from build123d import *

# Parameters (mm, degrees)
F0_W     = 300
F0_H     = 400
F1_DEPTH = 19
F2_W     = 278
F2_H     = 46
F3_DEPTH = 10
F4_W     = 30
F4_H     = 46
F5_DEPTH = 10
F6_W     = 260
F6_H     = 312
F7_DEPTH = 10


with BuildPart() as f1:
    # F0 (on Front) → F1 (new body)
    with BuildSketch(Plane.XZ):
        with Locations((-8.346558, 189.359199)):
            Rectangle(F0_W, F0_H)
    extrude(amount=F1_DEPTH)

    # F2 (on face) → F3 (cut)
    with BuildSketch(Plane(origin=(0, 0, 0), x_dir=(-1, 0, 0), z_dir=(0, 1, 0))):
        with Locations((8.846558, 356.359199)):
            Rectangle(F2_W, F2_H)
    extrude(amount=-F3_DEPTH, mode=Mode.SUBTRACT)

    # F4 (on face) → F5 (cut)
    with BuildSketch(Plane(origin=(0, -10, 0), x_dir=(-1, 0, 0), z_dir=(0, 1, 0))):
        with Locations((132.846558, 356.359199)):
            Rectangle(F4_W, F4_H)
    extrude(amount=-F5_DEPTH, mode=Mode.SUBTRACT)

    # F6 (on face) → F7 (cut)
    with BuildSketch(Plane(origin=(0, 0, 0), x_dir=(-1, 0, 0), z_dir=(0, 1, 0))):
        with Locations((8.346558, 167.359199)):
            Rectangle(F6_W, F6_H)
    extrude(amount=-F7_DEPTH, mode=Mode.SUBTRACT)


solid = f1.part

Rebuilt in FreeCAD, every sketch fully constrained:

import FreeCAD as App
import Part
import Sketcher
from FreeCAD import Vector


def add_polygon(sketch, points):
    """Adds a closed chain of lines whose ends are joined by coincident constraints."""
    first, n = sketch.GeometryCount, len(points)
    for a, b in zip(points, points[1:] + points[:1]):
        sketch.addGeometry(Part.LineSegment(App.Vector(*a, 0), App.Vector(*b, 0)), False)
    for i in range(n):
        sketch.addConstraint(Sketcher.Constraint("Coincident", first + i, 2, first + (i + 1) % n, 1))

doc = App.newDocument("Part")
body = doc.addObject("PartDesign::Body", "Body")

# Sketch on XZ plane
sketch1 = body.newObject("Sketcher::SketchObject", "Sketch")
sketch1.AttachmentSupport = (doc.getObject("XZ_Plane"), [""])
sketch1.MapMode = "FlatFace"
add_polygon(sketch1, [(-158, 389), (-158, -11), (142, -11), (142, 389)])  # lines 0-3
sketch1.addConstraint(Sketcher.Constraint("Vertical", 0))
sketch1.addConstraint(Sketcher.Constraint("Horizontal", 1))
sketch1.addConstraint(Sketcher.Constraint("Vertical", 2))
sketch1.addConstraint(Sketcher.Constraint("Horizontal", 3))
sketch1.addConstraint(Sketcher.Constraint("DistanceX", 1, 1, 1, 2, 300.0))
sketch1.addConstraint(Sketcher.Constraint("DistanceY", 0, 2, 0, 1, 400.0))
sketch1.addConstraint(Sketcher.Constraint("DistanceY", 0, 2, -1, 1, 10.640801))
sketch1.addConstraint(Sketcher.Constraint("DistanceX", 0, 2, -1, 1, 158.346558))
pad1 = body.newObject("PartDesign::Pad", "Pad")
pad1.Profile = sketch1
pad1.Length = 19

# Sketch on XZ plane
sketch2 = body.newObject("Sketcher::SketchObject", "Sketch001")
sketch2.AttachmentSupport = (doc.getObject("XZ_Plane"), [""])
sketch2.MapMode = "FlatFace"
add_polygon(sketch2, [(130, 379), (130, 333), (-148, 333), (-148, 379)])  # lines 0-3
sketch2.addConstraint(Sketcher.Constraint("Vertical", 0))
sketch2.addConstraint(Sketcher.Constraint("Horizontal", 1))
sketch2.addConstraint(Sketcher.Constraint("Vertical", 2))
sketch2.addConstraint(Sketcher.Constraint("Horizontal", 3))
sketch2.addConstraint(Sketcher.Constraint("DistanceX", 1, 2, 1, 1, 278.0))
sketch2.addConstraint(Sketcher.Constraint("DistanceY", 0, 2, 0, 1, 46.0))
sketch2.addConstraint(Sketcher.Constraint("DistanceY", -1, 1, 0, 2, 333.359199))
sketch2.addConstraint(Sketcher.Constraint("DistanceX", -1, 1, 0, 2, 130.153442))
pocket1 = body.newObject("PartDesign::Pocket", "Pocket")
pocket1.Profile = sketch2
pocket1.Length = 10
pocket1.Reversed = True

# Sketch on XZ plane
sketch3 = body.newObject("Sketcher::SketchObject", "Sketch002")
sketch3.AttachmentSupport = (doc.getObject("XZ_Plane"), [""])
sketch3.MapMode = "FlatFace"
sketch3.AttachmentOffset = App.Placement(Vector(0, 0, 10), App.Rotation())
add_polygon(sketch3, [(-118, 379), (-118, 333), (-148, 333), (-148, 379)])  # lines 0-3
sketch3.addConstraint(Sketcher.Constraint("Vertical", 0))
sketch3.addConstraint(Sketcher.Constraint("Horizontal", 1))
sketch3.addConstraint(Sketcher.Constraint("Vertical", 2))
sketch3.addConstraint(Sketcher.Constraint("Horizontal", 3))
sketch3.addConstraint(Sketcher.Constraint("DistanceX", 1, 2, 1, 1, 30.0))
sketch3.addConstraint(Sketcher.Constraint("DistanceY", 0, 2, 0, 1, 46.0))
sketch3.addConstraint(Sketcher.Constraint("DistanceY", -1, 1, 0, 2, 333.359199))
sketch3.addConstraint(Sketcher.Constraint("DistanceX", 0, 2, -1, 1, 117.846558))
pocket2 = body.newObject("PartDesign::Pocket", "Pocket001")
pocket2.Profile = sketch3
pocket2.Length = 10
pocket2.Reversed = True

# Sketch on XZ plane
sketch4 = body.newObject("Sketcher::SketchObject", "Sketch003")
sketch4.AttachmentSupport = (doc.getObject("XZ_Plane"), [""])
sketch4.MapMode = "FlatFace"
add_polygon(sketch4, [(122, 323), (122, 11), (-138, 11), (-138, 323)])  # lines 0-3
sketch4.addConstraint(Sketcher.Constraint("Vertical", 0))
sketch4.addConstraint(Sketcher.Constraint("Horizontal", 1))
sketch4.addConstraint(Sketcher.Constraint("Vertical", 2))
sketch4.addConstraint(Sketcher.Constraint("Horizontal", 3))
sketch4.addConstraint(Sketcher.Constraint("DistanceX", 1, 2, 1, 1, 260.0))
sketch4.addConstraint(Sketcher.Constraint("DistanceY", 0, 2, 0, 1, 312.0))
sketch4.addConstraint(Sketcher.Constraint("DistanceY", -1, 1, 0, 2, 11.359199))
sketch4.addConstraint(Sketcher.Constraint("DistanceX", -1, 1, 0, 2, 121.653442))
pocket3 = body.newObject("PartDesign::Pocket", "Pocket002")
pocket3.Profile = sketch4
pocket3.Length = 10
pocket3.Reversed = True

doc.recompute()
